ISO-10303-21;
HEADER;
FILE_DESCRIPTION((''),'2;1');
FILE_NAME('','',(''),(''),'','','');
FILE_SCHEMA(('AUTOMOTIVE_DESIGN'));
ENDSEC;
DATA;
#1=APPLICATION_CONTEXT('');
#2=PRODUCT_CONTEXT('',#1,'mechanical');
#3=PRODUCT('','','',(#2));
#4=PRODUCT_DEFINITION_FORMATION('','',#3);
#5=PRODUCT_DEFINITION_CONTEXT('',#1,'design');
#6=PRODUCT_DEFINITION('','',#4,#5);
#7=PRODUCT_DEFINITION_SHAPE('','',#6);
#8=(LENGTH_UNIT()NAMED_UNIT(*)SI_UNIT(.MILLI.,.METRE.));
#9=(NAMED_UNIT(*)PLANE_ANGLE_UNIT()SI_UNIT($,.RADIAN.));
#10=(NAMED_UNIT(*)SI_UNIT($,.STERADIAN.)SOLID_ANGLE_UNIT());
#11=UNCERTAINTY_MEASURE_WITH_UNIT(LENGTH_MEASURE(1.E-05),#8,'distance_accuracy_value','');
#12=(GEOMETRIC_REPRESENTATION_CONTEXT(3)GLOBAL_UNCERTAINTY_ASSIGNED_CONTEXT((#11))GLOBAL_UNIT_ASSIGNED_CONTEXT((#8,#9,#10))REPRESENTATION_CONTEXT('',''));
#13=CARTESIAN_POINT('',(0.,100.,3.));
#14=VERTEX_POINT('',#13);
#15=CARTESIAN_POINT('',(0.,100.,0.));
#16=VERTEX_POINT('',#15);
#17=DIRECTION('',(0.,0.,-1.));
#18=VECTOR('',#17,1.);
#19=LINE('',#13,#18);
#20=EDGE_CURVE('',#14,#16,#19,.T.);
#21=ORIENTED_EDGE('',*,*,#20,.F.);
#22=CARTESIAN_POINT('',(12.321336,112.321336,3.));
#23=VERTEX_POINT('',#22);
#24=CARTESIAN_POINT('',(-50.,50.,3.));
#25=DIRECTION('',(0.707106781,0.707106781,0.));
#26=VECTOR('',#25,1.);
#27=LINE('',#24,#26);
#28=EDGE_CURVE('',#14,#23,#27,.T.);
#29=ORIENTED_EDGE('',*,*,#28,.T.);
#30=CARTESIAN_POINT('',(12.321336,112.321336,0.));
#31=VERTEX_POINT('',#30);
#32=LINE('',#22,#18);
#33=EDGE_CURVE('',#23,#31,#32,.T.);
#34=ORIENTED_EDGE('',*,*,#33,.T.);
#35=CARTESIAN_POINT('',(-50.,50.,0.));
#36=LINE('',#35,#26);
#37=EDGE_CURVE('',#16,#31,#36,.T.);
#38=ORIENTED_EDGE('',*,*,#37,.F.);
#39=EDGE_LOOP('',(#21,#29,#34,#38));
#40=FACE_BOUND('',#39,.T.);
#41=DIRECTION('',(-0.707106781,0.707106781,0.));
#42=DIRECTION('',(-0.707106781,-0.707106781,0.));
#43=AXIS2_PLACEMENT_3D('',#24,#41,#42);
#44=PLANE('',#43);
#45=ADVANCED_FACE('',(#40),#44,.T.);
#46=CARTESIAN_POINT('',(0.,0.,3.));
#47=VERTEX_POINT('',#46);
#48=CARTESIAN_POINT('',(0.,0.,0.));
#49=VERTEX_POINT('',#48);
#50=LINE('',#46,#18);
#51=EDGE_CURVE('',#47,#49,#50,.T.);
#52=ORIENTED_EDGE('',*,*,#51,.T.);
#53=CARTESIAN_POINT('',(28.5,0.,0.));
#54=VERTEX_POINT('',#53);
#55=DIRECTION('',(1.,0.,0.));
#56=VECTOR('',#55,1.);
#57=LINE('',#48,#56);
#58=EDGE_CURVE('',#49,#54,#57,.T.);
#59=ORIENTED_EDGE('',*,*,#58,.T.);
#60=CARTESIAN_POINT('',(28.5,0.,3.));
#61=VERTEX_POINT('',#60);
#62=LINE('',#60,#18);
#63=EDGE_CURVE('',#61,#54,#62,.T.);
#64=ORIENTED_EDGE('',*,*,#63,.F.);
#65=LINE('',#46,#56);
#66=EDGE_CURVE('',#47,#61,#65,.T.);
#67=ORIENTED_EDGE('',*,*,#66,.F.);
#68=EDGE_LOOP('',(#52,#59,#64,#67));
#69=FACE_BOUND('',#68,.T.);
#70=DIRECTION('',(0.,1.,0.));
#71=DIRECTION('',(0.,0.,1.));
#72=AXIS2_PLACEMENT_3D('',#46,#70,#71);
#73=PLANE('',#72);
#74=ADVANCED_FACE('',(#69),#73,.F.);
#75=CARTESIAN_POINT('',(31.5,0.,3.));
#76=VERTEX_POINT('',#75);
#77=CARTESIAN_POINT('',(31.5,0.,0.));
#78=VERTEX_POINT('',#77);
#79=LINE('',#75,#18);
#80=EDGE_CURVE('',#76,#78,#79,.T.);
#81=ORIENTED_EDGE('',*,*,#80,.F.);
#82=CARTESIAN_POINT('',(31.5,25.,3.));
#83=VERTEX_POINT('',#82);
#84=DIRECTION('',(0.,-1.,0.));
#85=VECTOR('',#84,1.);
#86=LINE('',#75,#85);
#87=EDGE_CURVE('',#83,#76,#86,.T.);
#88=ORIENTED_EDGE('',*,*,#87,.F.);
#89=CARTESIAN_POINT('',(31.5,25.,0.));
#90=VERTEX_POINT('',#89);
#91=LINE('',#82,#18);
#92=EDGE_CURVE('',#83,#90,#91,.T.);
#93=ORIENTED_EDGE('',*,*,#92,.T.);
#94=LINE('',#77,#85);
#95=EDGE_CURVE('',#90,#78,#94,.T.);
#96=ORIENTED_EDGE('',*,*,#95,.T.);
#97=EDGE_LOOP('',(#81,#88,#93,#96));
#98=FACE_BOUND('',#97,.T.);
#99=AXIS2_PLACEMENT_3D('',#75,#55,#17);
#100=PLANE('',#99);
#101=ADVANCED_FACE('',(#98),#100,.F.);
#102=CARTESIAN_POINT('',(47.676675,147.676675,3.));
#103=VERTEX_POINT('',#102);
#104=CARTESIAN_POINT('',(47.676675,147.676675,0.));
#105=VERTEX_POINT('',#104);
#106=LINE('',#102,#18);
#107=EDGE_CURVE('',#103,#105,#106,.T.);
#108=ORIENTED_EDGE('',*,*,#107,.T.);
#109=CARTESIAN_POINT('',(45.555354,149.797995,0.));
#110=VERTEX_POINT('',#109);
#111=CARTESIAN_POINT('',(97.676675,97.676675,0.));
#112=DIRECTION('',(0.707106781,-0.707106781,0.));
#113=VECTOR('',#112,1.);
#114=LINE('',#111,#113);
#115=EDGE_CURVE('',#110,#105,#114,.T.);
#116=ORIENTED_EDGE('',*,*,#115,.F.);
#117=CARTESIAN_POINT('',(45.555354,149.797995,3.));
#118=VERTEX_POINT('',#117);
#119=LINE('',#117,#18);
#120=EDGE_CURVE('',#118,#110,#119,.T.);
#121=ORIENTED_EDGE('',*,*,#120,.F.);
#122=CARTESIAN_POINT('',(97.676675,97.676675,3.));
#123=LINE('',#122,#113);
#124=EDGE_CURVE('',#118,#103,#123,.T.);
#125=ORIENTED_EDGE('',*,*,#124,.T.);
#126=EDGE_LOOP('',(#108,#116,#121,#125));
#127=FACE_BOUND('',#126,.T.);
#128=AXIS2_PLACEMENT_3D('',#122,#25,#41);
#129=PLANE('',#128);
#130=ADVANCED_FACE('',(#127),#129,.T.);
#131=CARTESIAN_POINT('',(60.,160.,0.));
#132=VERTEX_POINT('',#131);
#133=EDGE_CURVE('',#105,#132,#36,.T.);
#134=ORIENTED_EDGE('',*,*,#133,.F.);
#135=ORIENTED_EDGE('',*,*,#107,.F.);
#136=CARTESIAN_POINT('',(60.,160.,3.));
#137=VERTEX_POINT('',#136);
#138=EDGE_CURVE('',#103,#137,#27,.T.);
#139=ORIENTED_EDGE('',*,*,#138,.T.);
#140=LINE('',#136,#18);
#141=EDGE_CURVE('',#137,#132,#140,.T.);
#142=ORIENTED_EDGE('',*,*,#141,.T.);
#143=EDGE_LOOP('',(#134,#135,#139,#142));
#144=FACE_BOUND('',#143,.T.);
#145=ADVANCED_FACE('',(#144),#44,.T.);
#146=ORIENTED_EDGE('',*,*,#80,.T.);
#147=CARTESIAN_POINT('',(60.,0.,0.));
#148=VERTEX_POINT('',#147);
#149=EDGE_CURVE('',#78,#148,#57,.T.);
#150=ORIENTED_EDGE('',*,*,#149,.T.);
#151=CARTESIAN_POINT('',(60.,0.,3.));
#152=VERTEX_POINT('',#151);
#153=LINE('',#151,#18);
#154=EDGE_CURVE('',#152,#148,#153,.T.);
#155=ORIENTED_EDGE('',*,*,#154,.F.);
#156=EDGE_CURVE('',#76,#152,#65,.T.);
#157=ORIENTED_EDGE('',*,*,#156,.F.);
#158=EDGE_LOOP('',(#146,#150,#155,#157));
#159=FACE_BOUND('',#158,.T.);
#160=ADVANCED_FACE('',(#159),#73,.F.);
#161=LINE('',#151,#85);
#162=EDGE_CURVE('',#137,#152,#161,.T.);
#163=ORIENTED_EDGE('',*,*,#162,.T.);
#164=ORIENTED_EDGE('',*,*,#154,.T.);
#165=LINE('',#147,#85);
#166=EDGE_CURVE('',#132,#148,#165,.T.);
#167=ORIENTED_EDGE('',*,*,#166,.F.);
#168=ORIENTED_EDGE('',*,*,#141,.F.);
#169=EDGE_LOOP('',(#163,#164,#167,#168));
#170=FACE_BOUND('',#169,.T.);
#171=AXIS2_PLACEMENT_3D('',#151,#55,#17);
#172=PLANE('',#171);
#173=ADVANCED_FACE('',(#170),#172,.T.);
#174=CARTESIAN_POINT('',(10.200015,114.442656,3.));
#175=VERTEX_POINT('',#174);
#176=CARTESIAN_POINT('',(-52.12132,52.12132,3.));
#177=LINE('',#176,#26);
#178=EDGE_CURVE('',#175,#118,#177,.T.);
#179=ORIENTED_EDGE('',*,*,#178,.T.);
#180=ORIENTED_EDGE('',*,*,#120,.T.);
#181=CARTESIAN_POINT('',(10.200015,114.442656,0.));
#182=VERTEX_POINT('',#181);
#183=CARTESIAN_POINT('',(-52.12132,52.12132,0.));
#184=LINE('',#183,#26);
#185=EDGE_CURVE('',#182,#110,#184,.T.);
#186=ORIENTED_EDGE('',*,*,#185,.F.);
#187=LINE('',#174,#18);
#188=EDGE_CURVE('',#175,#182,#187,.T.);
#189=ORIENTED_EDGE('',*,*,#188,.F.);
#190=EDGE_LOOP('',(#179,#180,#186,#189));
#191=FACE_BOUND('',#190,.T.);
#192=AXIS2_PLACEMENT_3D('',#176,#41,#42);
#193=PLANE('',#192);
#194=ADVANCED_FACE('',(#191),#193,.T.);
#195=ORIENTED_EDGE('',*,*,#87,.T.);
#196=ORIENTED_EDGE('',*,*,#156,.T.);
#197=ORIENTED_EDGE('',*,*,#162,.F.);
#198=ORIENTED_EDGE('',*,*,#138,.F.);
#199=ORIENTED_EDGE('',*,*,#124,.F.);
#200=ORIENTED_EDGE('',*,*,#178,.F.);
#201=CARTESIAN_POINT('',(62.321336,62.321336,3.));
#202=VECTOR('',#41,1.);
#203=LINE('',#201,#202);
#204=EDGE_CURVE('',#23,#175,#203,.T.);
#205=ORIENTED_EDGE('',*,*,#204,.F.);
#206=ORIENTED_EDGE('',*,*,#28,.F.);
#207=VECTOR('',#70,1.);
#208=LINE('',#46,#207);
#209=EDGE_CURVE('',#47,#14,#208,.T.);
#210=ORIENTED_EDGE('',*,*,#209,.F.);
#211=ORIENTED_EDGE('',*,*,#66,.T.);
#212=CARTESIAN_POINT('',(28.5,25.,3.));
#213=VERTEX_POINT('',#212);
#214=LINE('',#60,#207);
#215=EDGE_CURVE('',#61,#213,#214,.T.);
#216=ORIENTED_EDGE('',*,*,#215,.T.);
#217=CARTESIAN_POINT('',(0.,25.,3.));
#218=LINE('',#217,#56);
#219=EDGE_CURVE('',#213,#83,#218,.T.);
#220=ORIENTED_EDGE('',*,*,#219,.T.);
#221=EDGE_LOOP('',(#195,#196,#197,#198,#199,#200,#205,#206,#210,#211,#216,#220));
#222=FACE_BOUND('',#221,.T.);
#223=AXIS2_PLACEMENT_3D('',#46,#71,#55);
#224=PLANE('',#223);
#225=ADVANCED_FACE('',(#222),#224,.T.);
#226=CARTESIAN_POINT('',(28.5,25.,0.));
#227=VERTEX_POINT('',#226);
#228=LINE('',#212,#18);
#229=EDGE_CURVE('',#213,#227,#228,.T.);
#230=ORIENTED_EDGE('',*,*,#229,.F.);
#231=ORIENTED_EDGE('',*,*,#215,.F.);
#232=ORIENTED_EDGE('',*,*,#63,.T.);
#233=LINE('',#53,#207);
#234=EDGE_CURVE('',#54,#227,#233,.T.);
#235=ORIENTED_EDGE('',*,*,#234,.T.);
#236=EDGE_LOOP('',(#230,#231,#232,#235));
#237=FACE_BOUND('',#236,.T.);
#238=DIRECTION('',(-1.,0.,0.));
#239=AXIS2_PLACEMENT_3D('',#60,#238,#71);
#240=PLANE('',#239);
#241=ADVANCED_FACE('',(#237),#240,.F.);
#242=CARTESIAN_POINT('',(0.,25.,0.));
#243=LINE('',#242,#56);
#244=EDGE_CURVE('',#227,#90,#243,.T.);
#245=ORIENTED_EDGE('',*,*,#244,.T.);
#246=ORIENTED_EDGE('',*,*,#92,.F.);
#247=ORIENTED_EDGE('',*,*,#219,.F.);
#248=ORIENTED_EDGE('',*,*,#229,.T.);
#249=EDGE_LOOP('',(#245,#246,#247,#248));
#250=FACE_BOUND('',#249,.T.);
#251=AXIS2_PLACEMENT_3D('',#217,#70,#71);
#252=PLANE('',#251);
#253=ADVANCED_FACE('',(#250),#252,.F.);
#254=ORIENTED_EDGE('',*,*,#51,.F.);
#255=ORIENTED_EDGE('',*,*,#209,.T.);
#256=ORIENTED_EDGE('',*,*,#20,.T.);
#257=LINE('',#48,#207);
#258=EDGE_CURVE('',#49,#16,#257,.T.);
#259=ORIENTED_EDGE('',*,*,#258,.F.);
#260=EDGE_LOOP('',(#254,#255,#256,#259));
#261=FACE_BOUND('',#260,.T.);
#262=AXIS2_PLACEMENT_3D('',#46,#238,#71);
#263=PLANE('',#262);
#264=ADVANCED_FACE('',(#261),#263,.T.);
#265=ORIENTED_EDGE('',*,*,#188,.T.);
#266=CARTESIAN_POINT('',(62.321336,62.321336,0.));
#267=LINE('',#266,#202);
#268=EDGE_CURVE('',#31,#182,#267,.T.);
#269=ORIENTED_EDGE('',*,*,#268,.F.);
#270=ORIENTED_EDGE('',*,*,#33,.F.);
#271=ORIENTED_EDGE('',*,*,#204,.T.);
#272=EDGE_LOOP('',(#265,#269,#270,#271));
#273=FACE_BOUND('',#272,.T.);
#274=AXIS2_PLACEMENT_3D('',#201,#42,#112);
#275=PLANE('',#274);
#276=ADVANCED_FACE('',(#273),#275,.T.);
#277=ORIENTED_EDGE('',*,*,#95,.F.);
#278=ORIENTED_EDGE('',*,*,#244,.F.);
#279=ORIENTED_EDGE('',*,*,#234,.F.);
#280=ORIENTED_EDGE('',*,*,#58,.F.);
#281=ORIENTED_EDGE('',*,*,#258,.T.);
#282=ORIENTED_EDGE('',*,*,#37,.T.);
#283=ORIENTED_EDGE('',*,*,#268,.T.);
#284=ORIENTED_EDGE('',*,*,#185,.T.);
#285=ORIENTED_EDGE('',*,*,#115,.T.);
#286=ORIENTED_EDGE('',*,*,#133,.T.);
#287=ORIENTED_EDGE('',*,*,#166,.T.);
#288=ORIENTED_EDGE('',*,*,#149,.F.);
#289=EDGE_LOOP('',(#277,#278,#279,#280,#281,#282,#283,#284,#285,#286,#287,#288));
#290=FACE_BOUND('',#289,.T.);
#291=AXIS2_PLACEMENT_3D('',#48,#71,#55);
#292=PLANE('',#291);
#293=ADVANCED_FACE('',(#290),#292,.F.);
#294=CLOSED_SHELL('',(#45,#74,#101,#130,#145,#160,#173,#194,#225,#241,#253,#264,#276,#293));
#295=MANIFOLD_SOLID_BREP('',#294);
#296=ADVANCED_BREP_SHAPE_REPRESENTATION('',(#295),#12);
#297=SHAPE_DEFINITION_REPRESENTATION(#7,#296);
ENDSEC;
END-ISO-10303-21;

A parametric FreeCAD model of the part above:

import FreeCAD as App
import Part
import Sketcher
from FreeCAD import Vector
Q = App.Units.Quantity

doc = App.newDocument("Part")
body = doc.addObject("PartDesign::Body", "Body")

# Sketch on XY plane
sketch1 = doc.addObject("Sketcher::SketchObject", "Sketch")
body.addObject(sketch1)
sketch1.AttachmentSupport = (doc.XY_Plane, [""])
sketch1.MapMode = "FlatFace"
sketch1.addGeometry(Part.LineSegment(Vector(0, 100, 0), Vector(0, 0, 0)), False)
sketch1.addGeometry(Part.LineSegment(Vector(0, 0, 0), Vector(28.5, 0, 0)), False)
sketch1.addGeometry(Part.LineSegment(Vector(28.5, 0, 0), Vector(28.5, 25, 0)), False)
sketch1.addGeometry(Part.LineSegment(Vector(28.5, 25, 0), Vector(31.5, 25, 0)), False)
sketch1.addGeometry(Part.LineSegment(Vector(31.5, 25, 0), Vector(31.5, 0, 0)), False)
sketch1.addGeometry(Part.LineSegment(Vector(31.5, 0, 0), Vector(60, 0, 0)), False)
sketch1.addGeometry(Part.LineSegment(Vector(60, 0, 0), Vector(60, 160, 0)), False)
sketch1.addGeometry(Part.LineSegment(Vector(60, 160, 0), Vector(47.676675, 147.676675, 0)), False)
sketch1.addGeometry(Part.LineSegment(Vector(47.676675, 147.676675, 0), Vector(45.555354, 149.797995, 0)), False)
sketch1.addGeometry(Part.LineSegment(Vector(45.555354, 149.797995, 0), Vector(10.200015, 114.442656, 0)), False)
sketch1.addGeometry(Part.LineSegment(Vector(10.200015, 114.442656, 0), Vector(12.321336, 112.321336, 0)), False)
sketch1.addGeometry(Part.LineSegment(Vector(12.321336, 112.321336, 0), Vector(0, 100, 0)), False)
sketch1.addConstraint(Sketcher.Constraint("Coincident", 0, 2, 1, 1))
sketch1.addConstraint(Sketcher.Constraint("Coincident", 1, 2, 2, 1))
sketch1.addConstraint(Sketcher.Constraint("Coincident", 2, 2, 3, 1))
sketch1.addConstraint(Sketcher.Constraint("Coincident", 3, 2, 4, 1))
sketch1.addConstraint(Sketcher.Constraint("Coincident", 4, 2, 5, 1))
sketch1.addConstraint(Sketcher.Constraint("Coincident", 5, 2, 6, 1))
sketch1.addConstraint(Sketcher.Constraint("Coincident", 6, 2, 7, 1))
sketch1.addConstraint(Sketcher.Constraint("Coincident", 7, 2, 8, 1))
sketch1.addConstraint(Sketcher.Constraint("Coincident", 8, 2, 9, 1))
sketch1.addConstraint(Sketcher.Constraint("Coincident", 9, 2, 10, 1))
sketch1.addConstraint(Sketcher.Constraint("Coincident", 10, 2, 11, 1))
sketch1.addConstraint(Sketcher.Constraint("Coincident", 11, 2, 0, 1))
sketch1.addConstraint(Sketcher.Constraint("Vertical", 0))
sketch1.addConstraint(Sketcher.Constraint("Horizontal", 1))
sketch1.addConstraint(Sketcher.Constraint("Vertical", 2))
sketch1.addConstraint(Sketcher.Constraint("Horizontal", 3))
sketch1.addConstraint(Sketcher.Constraint("Vertical", 4))
sketch1.addConstraint(Sketcher.Constraint("Horizontal", 5))
sketch1.addConstraint(Sketcher.Constraint("Vertical", 6))
sketch1.addConstraint(Sketcher.Constraint("Coincident", 0, 2, -1, 1))
sketch1.addConstraint(Sketcher.Constraint("PointOnObject", 4, 2, -1))
sketch1.addConstraint(Sketcher.Constraint("Perpendicular", 7, 8))
sketch1.addConstraint(Sketcher.Constraint("Perpendicular", 8, 9))
sketch1.addConstraint(Sketcher.Constraint("Perpendicular", 9, 10))
sketch1.addConstraint(Sketcher.Constraint("Perpendicular", 10, 11))
sketch1.addConstraint(Sketcher.Constraint("Equal", 1, 5))
sketch1.addConstraint(Sketcher.Constraint("Equal", 8, 10))
sketch1.addConstraint(Sketcher.Constraint("DistanceX", 3, 1, 3, 2, Q("3 mm")))
sketch1.addConstraint(Sketcher.Constraint("DistanceY", 0, 2, 0, 1, Q("100 mm")))
sketch1.addConstraint(Sketcher.Constraint("DistanceY", 2, 1, 2, 2, Q("25 mm")))
sketch1.addConstraint(Sketcher.Constraint("DistanceY", 6, 1, 6, 2, Q("160 mm")))
sketch1.addConstraint(Sketcher.Constraint("Angle", 7, Q("-135 deg")))
sketch1.addConstraint(Sketcher.Constraint("Distance", 8, Q("3 mm")))
sketch1.addConstraint(Sketcher.Constraint("Distance", 9, Q("50 mm")))
sketch1.addConstraint(Sketcher.Constraint("Distance", 11, Q("17.425 mm")))
pad1 = doc.addObject("PartDesign::Pad", "Pad")
body.addObject(pad1)
pad1.Profile = sketch1
pad1.Length = 3

doc.recompute()
